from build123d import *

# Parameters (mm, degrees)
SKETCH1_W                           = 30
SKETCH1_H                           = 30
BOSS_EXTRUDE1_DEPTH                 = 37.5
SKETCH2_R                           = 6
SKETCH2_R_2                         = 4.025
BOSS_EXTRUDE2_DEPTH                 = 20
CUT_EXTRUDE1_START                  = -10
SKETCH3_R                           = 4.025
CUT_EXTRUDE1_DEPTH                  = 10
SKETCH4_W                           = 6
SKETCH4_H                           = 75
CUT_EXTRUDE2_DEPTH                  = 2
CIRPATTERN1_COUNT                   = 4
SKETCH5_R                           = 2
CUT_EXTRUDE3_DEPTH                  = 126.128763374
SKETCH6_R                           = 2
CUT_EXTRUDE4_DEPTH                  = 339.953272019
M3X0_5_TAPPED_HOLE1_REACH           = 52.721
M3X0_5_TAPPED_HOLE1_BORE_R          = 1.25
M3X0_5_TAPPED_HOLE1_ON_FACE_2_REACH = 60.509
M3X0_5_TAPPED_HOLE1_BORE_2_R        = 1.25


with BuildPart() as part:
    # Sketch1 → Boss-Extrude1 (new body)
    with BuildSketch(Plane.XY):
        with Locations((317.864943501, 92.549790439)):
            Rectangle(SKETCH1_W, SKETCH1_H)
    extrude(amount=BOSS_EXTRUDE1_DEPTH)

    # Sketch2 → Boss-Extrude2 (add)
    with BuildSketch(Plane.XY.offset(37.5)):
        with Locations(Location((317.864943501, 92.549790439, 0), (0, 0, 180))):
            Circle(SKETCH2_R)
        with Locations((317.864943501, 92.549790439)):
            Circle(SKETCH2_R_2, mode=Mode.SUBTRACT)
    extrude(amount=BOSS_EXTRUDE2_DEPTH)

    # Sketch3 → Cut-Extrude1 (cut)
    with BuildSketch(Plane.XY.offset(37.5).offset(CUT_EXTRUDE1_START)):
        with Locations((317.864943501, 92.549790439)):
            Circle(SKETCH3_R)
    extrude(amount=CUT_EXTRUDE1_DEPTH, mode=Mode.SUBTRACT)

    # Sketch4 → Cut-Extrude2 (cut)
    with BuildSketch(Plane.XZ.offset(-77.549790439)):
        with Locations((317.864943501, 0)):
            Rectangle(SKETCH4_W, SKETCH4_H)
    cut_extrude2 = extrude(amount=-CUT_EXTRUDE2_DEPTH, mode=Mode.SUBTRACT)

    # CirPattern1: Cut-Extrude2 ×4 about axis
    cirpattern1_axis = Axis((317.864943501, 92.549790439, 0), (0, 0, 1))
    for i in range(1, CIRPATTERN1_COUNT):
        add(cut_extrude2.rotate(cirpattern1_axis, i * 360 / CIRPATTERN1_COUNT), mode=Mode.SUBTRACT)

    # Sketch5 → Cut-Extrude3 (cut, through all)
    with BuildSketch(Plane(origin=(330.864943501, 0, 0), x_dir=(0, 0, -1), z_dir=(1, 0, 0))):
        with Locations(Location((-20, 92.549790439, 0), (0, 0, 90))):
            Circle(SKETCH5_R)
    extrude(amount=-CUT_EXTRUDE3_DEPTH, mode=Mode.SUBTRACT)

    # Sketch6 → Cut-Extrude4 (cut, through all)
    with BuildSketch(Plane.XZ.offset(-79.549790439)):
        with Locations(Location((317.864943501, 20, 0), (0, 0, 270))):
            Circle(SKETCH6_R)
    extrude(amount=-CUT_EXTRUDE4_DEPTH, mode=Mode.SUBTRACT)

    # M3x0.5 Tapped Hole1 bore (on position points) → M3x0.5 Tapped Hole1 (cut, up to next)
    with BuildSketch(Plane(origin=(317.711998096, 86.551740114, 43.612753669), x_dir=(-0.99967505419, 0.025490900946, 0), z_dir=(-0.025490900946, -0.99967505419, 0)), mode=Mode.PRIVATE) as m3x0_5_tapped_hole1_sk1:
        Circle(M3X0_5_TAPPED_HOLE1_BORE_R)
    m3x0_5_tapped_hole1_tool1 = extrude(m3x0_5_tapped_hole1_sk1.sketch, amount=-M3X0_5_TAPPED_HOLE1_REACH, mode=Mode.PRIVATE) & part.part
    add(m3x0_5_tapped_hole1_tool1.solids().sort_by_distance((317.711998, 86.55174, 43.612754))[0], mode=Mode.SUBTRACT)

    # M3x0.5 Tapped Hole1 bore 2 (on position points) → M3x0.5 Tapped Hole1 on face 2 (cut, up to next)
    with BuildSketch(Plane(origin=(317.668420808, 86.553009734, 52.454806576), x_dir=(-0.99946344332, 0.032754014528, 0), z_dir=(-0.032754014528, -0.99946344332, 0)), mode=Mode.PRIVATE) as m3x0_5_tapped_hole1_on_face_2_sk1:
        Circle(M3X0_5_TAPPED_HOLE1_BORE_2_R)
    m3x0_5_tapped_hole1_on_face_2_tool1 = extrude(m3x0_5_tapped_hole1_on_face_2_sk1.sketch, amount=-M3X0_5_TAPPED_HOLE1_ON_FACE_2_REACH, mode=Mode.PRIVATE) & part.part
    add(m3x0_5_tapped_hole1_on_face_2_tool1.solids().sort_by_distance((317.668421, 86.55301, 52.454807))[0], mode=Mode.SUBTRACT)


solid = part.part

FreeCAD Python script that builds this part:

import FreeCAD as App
import Part
import Sketcher

V = App.Vector
Q = App.Units.Quantity

doc = App.newDocument("Part")
body = doc.addObject("PartDesign::Body", "Body")

# Sketch on XY plane
sketch1 = body.newObject("Sketcher::SketchObject", "Sketch")
sketch1.AttachmentSupport = (doc.getObject("XY_Plane"), [""])
sketch1.MapMode = "FlatFace"
sketch1.addGeometry([
    Part.LineSegment(V(303, 108, 0), V(303, 78, 0)),
    Part.LineSegment(V(303, 78, 0), V(333, 78, 0)),
    Part.LineSegment(V(333, 78, 0), V(333, 108, 0)),
    Part.LineSegment(V(333, 108, 0), V(303, 108, 0)),
], False)
sketch1.addConstraint([
    Sketcher.Constraint("Coincident", 0, 2, 1, 1),
    Sketcher.Constraint("Coincident", 1, 2, 2, 1),
    Sketcher.Constraint("Coincident", 2, 2, 3, 1),
    Sketcher.Constraint("Coincident", 3, 2, 0, 1),
    Sketcher.Constraint("Vertical", 0),
    Sketcher.Constraint("Horizontal", 1),
    Sketcher.Constraint("Vertical", 2),
    Sketcher.Constraint("Horizontal", 3),
    Sketcher.Constraint("Equal", 3, 0),
    Sketcher.Constraint("DistanceX", 1, 1, 1, 2, Q("30 mm")),
    Sketcher.Constraint("DistanceY", -1, 1, 0, 2, Q("77.54979 mm")),
    Sketcher.Constraint("DistanceX", -1, 1, 0, 2, Q("302.864944 mm")),
])
pad1 = body.newObject("PartDesign::Pad", "Pad")
pad1.Profile = sketch1
pad1.Length = 37.5

# Sketch on XY plane
sketch2 = body.newObject("Sketcher::SketchObject", "Sketch001")
sketch2.AttachmentSupport = (doc.getObject("XY_Plane"), [""])
sketch2.MapMode = "FlatFace"
sketch2.AttachmentOffset = App.Placement(V(0, 0, 37.5), App.Rotation())
sketch2.addGeometry([
    Part.Circle(V(317.9, 92.5, 0), V(0, 0, 1), 6),
    Part.Circle(V(317.9, 92.5, 0), V(0, 0, 1), 4),
], False)
sketch2.addConstraint([
    Sketcher.Constraint("Coincident", 1, 3, 0, 3),
    Sketcher.Constraint("Diameter", 0, Q("12 mm")),
    Sketcher.Constraint("Diameter", 1, Q("8.05 mm")),
    Sketcher.Constraint("DistanceY", -1, 1, 0, 3, Q("92.54979 mm")),
    Sketcher.Constraint("DistanceX", -1, 1, 0, 3, Q("317.864944 mm")),
])
pad2 = body.newObject("PartDesign::Pad", "Pad001")
pad2.Profile = sketch2
pad2.Length = 20

# Sketch on XY plane
sketch3 = body.newObject("Sketcher::SketchObject", "Sketch002")
sketch3.AttachmentSupport = (doc.getObject("XY_Plane"), [""])
sketch3.MapMode = "FlatFace"
sketch3.AttachmentOffset = App.Placement(V(0, 0, 27.5), App.Rotation())
sketch3.addGeometry(Part.Circle(V(317.9, 92.5, 0), V(0, 0, 1), 4), False)
sketch3.addConstraint([
    Sketcher.Constraint("Diameter", 0, Q("8.05 mm")),
    Sketcher.Constraint("DistanceY", -1, 1, 0, 3, Q("92.54979 mm")),
    Sketcher.Constraint("DistanceX", -1, 1, 0, 3, Q("317.864944 mm")),
])
pocket1 = body.newObject("PartDesign::Pocket", "Pocket")
pocket1.Profile = sketch3
pocket1.Length = 10
pocket1.Reversed = True

# Sketch on XZ plane
sketch4 = body.newObject("Sketcher::SketchObject", "Sketch003")
sketch4.AttachmentSupport = (doc.getObject("XZ_Plane"), [""])
sketch4.MapMode = "FlatFace"
sketch4.AttachmentOffset = App.Placement(V(0, 0, -77.54979), App.Rotation())
sketch4.addGeometry([
    Part.LineSegment(V(315, 38, 0), V(315, -38, 0)),
    Part.LineSegment(V(315, -38, 0), V(321, -38, 0)),
    Part.LineSegment(V(321, -38, 0), V(321, 38, 0)),
    Part.LineSegment(V(321, 38, 0), V(315, 38, 0)),
], False)
sketch4.addConstraint([
    Sketcher.Constraint("Coincident", 0, 2, 1, 1),
    Sketcher.Constraint("Coincident", 1, 2, 2, 1),
    Sketcher.Constraint("Coincident", 2, 2, 3, 1),
    Sketcher.Constraint("Coincident", 3, 2, 0, 1),
    Sketcher.Constraint("Vertical", 0),
    Sketcher.Constraint("Horizontal", 1),
    Sketcher.Constraint("Vertical", 2),
    Sketcher.Constraint("Horizontal", 3),
    Sketcher.Constraint("DistanceX", 1, 1, 1, 2, Q("6 mm")),
    Sketcher.Constraint("DistanceY", 0, 2, 0, 1, Q("75 mm")),
    Sketcher.Constraint("DistanceY", 0, 2, -1, 1, Q("37.5 mm")),
    Sketcher.Constraint("DistanceX", -1, 1, 0, 2, Q("314.864944 mm")),
])
pocket2 = body.newObject("PartDesign::Pocket", "Pocket001")
pocket2.Profile = sketch4
pocket2.Length = 2
doc.recompute()

datumline = body.newObject("PartDesign::Line", "DatumLine")
datumline.Placement = App.Placement(V(317.864944, 92.54979, 0), App.Rotation(V(0, 0, 1), V(0, 0, 1)))
polarpattern = body.newObject("PartDesign::PolarPattern", "PolarPattern")
polarpattern.Originals = [pocket2]
polarpattern.Axis = (datumline, [""])
polarpattern.Angle = 360
polarpattern.Occurrences = 4
body.Tip = polarpattern

# Sketch on YZ plane
sketch5 = body.newObject("Sketcher::SketchObject", "Sketch004")
sketch5.AttachmentSupport = (doc.getObject("YZ_Plane"), [""])
sketch5.MapMode = "FlatFace"
sketch5.AttachmentOffset = App.Placement(V(0, 0, 330.864944), App.Rotation())
sketch5.addGeometry(Part.Circle(V(92.5, 20, 0), V(0, 0, 1), 2), False)
sketch5.addConstraint([
    Sketcher.Constraint("Diameter", 0, Q("4 mm")),
    Sketcher.Constraint("DistanceY", -1, 1, 0, 3, Q("20 mm")),
    Sketcher.Constraint("DistanceX", -1, 1, 0, 3, Q("92.54979 mm")),
])
pocket3 = body.newObject("PartDesign::Pocket", "Pocket002")
pocket3.Profile = sketch5
pocket3.Type = "ThroughAll"

# Sketch on XZ plane
sketch6 = body.newObject("Sketcher::SketchObject", "Sketch005")
sketch6.AttachmentSupport = (doc.getObject("XZ_Plane"), [""])
sketch6.MapMode = "FlatFace"
sketch6.AttachmentOffset = App.Placement(V(0, 0, -79.54979), App.Rotation())
sketch6.addGeometry(Part.Circle(V(317.9, 20, 0), V(0, 0, 1), 2), False)
sketch6.addConstraint([
    Sketcher.Constraint("Diameter", 0, Q("4 mm")),
    Sketcher.Constraint("DistanceY", -1, 1, 0, 3, Q("20 mm")),
    Sketcher.Constraint("DistanceX", -1, 1, 0, 3, Q("317.864944 mm")),
])
pocket4 = body.newObject("PartDesign::Pocket", "Pocket003")
pocket4.Profile = sketch6
pocket4.Type = "ThroughAll"

# Sketch on an angled plane
sketch7 = body.newObject("Sketcher::SketchObject", "Sketch006")
sketch7.Placement = App.Placement(V(317.711998, 86.55174, 43.612754), App.Rotation(V(-0.999675054, 0.025490901, 0), V(0, 0, -1), V(-0.025490901, -0.999675054, 0), "ZXY"))
sketch7.addGeometry(Part.Circle(V(0, 0, 0), V(0, 0, 1), 1.2), False)
sketch7.addConstraint([
    Sketcher.Constraint("Coincident", 0, 3, -1, 1),
    Sketcher.Constraint("Diameter", 0, Q("2.5 mm")),
])
pocket5 = body.newObject("PartDesign::Pocket", "Pocket004")
pocket5.Profile = sketch7
pocket5.Type = "UpToFirst"

# Sketch on an angled plane
sketch8 = body.newObject("Sketcher::SketchObject", "Sketch007")
sketch8.Placement = App.Placement(V(317.668421, 86.55301, 52.454807), App.Rotation(V(-0.999463443, 0.032754015, 0), V(0, 0, -0.999999999), V(-0.032754015, -0.999463443, 0), "ZXY"))
sketch8.addGeometry(Part.Circle(V(0, 0, 0), V(0, 0, 1), 1.2), False)
sketch8.addConstraint([
    Sketcher.Constraint("Coincident", 0, 3, -1, 1),
    Sketcher.Constraint("Diameter", 0, Q("2.5 mm")),
])
pocket6 = body.newObject("PartDesign::Pocket", "Pocket005")
pocket6.Profile = sketch8
pocket6.Type = "UpToFirst"

doc.recompute()
